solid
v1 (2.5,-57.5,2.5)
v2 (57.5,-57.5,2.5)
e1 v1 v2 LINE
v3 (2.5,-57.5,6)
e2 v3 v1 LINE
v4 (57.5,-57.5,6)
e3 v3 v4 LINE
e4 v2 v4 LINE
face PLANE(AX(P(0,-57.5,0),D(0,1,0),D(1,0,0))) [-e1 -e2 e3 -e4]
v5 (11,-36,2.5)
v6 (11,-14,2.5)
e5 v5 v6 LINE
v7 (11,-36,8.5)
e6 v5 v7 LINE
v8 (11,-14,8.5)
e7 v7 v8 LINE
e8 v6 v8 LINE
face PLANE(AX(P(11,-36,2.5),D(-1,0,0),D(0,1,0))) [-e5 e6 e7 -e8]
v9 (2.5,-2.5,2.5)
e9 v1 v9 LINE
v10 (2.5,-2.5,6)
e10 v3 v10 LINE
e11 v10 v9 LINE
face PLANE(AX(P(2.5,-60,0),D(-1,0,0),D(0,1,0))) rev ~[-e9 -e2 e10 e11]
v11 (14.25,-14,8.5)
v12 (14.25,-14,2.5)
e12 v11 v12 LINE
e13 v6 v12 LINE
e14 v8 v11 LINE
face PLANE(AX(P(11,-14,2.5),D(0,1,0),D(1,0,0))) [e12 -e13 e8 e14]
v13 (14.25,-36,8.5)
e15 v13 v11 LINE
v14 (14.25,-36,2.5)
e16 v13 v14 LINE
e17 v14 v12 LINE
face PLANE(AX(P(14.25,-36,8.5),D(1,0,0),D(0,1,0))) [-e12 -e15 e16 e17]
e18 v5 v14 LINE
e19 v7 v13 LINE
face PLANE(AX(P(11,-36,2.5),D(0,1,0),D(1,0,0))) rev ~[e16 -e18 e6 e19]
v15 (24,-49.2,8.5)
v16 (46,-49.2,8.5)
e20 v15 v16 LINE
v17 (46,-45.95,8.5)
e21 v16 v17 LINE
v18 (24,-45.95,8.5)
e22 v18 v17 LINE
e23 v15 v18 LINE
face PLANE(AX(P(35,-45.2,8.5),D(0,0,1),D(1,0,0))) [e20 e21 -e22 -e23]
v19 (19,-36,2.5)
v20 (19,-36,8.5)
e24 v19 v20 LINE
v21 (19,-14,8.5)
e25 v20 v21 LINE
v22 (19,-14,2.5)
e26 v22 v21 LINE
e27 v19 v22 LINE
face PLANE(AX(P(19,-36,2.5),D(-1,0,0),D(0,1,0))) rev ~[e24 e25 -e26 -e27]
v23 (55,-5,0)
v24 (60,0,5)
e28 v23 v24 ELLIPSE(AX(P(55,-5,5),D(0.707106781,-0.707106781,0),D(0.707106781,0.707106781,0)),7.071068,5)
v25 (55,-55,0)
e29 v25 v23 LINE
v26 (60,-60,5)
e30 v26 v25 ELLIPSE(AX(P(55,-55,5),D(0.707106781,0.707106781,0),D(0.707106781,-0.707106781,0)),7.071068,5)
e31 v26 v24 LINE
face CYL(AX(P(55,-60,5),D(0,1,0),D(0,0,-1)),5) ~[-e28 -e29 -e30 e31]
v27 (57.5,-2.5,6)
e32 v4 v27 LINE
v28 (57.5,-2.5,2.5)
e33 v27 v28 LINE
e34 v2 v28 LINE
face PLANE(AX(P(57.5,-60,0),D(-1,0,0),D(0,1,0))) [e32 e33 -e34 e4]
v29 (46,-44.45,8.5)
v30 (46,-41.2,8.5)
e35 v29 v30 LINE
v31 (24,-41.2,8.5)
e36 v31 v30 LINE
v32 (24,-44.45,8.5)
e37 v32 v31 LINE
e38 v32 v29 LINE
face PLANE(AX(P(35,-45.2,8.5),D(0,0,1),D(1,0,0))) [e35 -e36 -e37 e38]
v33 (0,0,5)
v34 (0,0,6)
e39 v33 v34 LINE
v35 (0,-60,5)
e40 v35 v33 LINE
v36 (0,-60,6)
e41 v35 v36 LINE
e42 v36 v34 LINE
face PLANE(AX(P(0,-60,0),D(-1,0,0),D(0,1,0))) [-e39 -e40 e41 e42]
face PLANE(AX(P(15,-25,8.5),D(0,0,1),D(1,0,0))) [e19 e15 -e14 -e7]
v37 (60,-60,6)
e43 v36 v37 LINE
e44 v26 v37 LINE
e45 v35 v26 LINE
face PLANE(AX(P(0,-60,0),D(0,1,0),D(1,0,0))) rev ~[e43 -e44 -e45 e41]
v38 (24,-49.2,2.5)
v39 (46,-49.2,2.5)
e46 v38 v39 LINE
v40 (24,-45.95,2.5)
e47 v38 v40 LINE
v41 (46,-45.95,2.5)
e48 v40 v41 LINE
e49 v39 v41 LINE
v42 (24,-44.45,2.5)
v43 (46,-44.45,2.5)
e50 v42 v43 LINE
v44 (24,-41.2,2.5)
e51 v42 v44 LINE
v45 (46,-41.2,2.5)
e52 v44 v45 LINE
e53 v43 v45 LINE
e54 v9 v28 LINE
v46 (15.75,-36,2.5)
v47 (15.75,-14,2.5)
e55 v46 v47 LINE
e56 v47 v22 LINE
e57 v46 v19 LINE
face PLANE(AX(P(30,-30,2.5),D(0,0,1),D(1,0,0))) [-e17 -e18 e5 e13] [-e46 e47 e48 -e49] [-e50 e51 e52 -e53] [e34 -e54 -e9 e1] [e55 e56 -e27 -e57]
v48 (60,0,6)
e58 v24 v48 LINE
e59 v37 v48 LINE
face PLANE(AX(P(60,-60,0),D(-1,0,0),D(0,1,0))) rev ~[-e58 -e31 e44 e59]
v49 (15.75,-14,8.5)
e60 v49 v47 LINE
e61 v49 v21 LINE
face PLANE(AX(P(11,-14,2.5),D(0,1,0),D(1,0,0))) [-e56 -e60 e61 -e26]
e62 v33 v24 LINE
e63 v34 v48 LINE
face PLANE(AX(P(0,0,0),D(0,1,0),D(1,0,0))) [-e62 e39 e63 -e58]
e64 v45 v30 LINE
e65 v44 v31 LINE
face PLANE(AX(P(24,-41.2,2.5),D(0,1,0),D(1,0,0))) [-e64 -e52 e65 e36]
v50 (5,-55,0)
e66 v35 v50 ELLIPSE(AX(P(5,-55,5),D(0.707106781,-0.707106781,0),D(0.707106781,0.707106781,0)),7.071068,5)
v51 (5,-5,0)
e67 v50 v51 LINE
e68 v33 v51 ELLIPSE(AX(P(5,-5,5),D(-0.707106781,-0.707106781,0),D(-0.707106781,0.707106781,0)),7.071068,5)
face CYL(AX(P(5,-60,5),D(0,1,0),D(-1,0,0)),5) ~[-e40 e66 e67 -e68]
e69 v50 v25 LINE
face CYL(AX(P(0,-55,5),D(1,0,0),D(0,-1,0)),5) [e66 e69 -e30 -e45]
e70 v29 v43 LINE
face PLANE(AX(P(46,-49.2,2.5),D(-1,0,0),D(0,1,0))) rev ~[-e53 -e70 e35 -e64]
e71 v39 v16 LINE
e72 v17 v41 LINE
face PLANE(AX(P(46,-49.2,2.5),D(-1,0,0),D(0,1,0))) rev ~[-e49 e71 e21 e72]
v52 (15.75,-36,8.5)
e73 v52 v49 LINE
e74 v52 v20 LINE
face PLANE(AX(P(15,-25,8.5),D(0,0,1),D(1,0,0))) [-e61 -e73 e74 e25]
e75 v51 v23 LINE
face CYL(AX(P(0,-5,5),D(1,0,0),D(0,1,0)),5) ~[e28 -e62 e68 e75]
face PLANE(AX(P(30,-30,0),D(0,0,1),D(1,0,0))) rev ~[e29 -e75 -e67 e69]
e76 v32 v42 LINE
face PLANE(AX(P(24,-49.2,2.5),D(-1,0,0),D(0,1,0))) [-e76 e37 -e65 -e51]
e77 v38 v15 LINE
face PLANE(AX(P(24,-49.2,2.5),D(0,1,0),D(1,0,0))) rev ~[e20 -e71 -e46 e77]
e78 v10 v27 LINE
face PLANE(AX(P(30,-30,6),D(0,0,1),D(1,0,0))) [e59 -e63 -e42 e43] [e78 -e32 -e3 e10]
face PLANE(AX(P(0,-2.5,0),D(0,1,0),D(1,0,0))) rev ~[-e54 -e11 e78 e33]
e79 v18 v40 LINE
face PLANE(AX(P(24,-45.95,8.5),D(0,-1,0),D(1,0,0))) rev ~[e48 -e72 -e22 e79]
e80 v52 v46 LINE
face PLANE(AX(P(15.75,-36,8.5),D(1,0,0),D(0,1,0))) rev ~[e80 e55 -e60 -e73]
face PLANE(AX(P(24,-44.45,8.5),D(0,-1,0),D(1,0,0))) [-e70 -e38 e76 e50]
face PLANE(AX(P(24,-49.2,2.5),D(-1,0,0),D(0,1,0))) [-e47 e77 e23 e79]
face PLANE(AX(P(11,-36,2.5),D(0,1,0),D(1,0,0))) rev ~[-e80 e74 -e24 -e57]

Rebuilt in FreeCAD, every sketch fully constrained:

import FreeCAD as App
import Part
import Sketcher
from FreeCAD import Vector


def edges_at(feature, points):
    """Names of the edges that pass closest to the given points."""
    edges = feature.Shape.Edges
    near = lambda p: min(range(len(edges)), key=lambda i: edges[i].distToShape(Part.Vertex(*p))[0])
    return sorted({f"Edge{near(p) + 1}" for p in points})


def faces_at(feature, points):
    """Names of the faces that lie closest to the given points."""
    faces = feature.Shape.Faces
    near = lambda p: min(range(len(faces)), key=lambda i: faces[i].distToShape(Part.Vertex(*p))[0])
    return sorted({f"Face{near(p) + 1}" for p in points})

doc = App.newDocument("Part")
body = doc.addObject("PartDesign::Body", "Body")

# Sketch on XY plane
sketch1 = body.newObject("Sketcher::SketchObject", "Sketch")
sketch1.AttachmentSupport = (doc.getObject("XY_Plane"), [""])
sketch1.MapMode = "FlatFace"
sketch1.addGeometry(Part.LineSegment(Vector(0, 0, 0), Vector(0, -60, 0)), False)
sketch1.addGeometry(Part.LineSegment(Vector(0, -60, 0), Vector(60, -60, 0)), False)
sketch1.addGeometry(Part.LineSegment(Vector(60, -60, 0), Vector(60, 0, 0)), False)
sketch1.addGeometry(Part.LineSegment(Vector(60, 0, 0), Vector(0, 0, 0)), False)
sketch1.addConstraint(Sketcher.Constraint("Coincident", 0, 2, 1, 1))
sketch1.addConstraint(Sketcher.Constraint("Coincident", 1, 2, 2, 1))
sketch1.addConstraint(Sketcher.Constraint("Coincident", 2, 2, 3, 1))
sketch1.addConstraint(Sketcher.Constraint("Coincident", 3, 2, 0, 1))
sketch1.addConstraint(Sketcher.Constraint("Vertical", 0))
sketch1.addConstraint(Sketcher.Constraint("Horizontal", 1))
sketch1.addConstraint(Sketcher.Constraint("Vertical", 2))
sketch1.addConstraint(Sketcher.Constraint("Horizontal", 3))
sketch1.addConstraint(Sketcher.Constraint("Coincident", 3, 2, -1, 1))
sketch1.addConstraint(Sketcher.Constraint("Equal", 3, 0))
sketch1.addConstraint(Sketcher.Constraint("DistanceX", 1, 1, 1, 2, 60.0))
pad1 = body.newObject("PartDesign::Pad", "Pad")
pad1.Profile = sketch1
pad1.Length = 6
doc.recompute()

thickness = body.newObject("PartDesign::Thickness", "Thickness")
thickness.Base = (pad1, faces_at(pad1, [(30, -30, 6)]))
thickness.Value = 2.5
thickness.Reversed = True
thickness.Join = "Arc"

# Sketch on XY plane
sketch2 = body.newObject("Sketcher::SketchObject", "Sketch001")
sketch2.AttachmentSupport = (doc.getObject("XY_Plane"), [""])
sketch2.MapMode = "FlatFace"
sketch2.AttachmentOffset = App.Placement(Vector(0, 0, 2.5), App.Rotation())
sketch2.addGeometry(Part.LineSegment(Vector(11, -14, 0), Vector(11, -36, 0)), False)
sketch2.addGeometry(Part.LineSegment(Vector(11, -36, 0), Vector(19, -36, 0)), False)
sketch2.addGeometry(Part.LineSegment(Vector(19, -36, 0), Vector(19, -14, 0)), False)
sketch2.addGeometry(Part.LineSegment(Vector(19, -14, 0), Vector(11, -14, 0)), False)
sketch2.addGeometry(Part.LineSegment(Vector(24, -41.2, 0), Vector(24, -49.2, 0)), False)
sketch2.addGeometry(Part.LineSegment(Vector(24, -49.2, 0), Vector(46, -49.2, 0)), False)
sketch2.addGeometry(Part.LineSegment(Vector(46, -49.2, 0), Vector(46, -41.2, 0)), False)
sketch2.addGeometry(Part.LineSegment(Vector(46, -41.2, 0), Vector(24, -41.2, 0)), False)
sketch2.addConstraint(Sketcher.Constraint("Coincident", 0, 2, 1, 1))
sketch2.addConstraint(Sketcher.Constraint("Coincident", 1, 2, 2, 1))
sketch2.addConstraint(Sketcher.Constraint("Coincident", 2, 2, 3, 1))
sketch2.addConstraint(Sketcher.Constraint("Coincident", 3, 2, 0, 1))
sketch2.addConstraint(Sketcher.Constraint("Coincident", 4, 2, 5, 1))
sketch2.addConstraint(Sketcher.Constraint("Coincident", 5, 2, 6, 1))
sketch2.addConstraint(Sketcher.Constraint("Coincident", 6, 2, 7, 1))
sketch2.addConstraint(Sketcher.Constraint("Coincident", 7, 2, 4, 1))
sketch2.addConstraint(Sketcher.Constraint("Vertical", 0))
sketch2.addConstraint(Sketcher.Constraint("Horizontal", 1))
sketch2.addConstraint(Sketcher.Constraint("Vertical", 2))
sketch2.addConstraint(Sketcher.Constraint("Horizontal", 3))
sketch2.addConstraint(Sketcher.Constraint("Vertical", 4))
sketch2.addConstraint(Sketcher.Constraint("Horizontal", 5))
sketch2.addConstraint(Sketcher.Constraint("Vertical", 6))
sketch2.addConstraint(Sketcher.Constraint("Horizontal", 7))
sketch2.addConstraint(Sketcher.Constraint("Equal", 7, 0))
sketch2.addConstraint(Sketcher.Constraint("Equal", 3, 4))
sketch2.addConstraint(Sketcher.Constraint("DistanceX", 1, 1, 1, 2, 8.0))
sketch2.addConstraint(Sketcher.Constraint("DistanceX", 5, 1, 5, 2, 22.0))
sketch2.addConstraint(Sketcher.Constraint("DistanceX", -1, 1, 0, 2, 11.0))
sketch2.addConstraint(Sketcher.Constraint("DistanceY", 0, 2, -1, 1, 36.0))
sketch2.addConstraint(Sketcher.Constraint("DistanceX", -1, 1, 4, 2, 24.0))
sketch2.addConstraint(Sketcher.Constraint("DistanceY", 4, 2, -1, 1, 49.2))
pad2 = body.newObject("PartDesign::Pad", "Pad001")
pad2.Profile = sketch2
pad2.Length = 6

# Sketch on XY plane
sketch3 = body.newObject("Sketcher::SketchObject", "Sketch002")
sketch3.AttachmentSupport = (doc.getObject("XY_Plane"), [""])
sketch3.MapMode = "FlatFace"
sketch3.AttachmentOffset = App.Placement(Vector(0, 0, 8.5), App.Rotation())
sketch3.addGeometry(Part.LineSegment(Vector(14.25, -14, 0), Vector(14.25, -36, 0)), False)
sketch3.addGeometry(Part.LineSegment(Vector(14.25, -36, 0), Vector(15.75, -36, 0)), False)
sketch3.addGeometry(Part.LineSegment(Vector(15.75, -36, 0), Vector(15.75, -14, 0)), False)
sketch3.addGeometry(Part.LineSegment(Vector(15.75, -14, 0), Vector(14.25, -14, 0)), False)
sketch3.addGeometry(Part.LineSegment(Vector(24, -44.45, 0), Vector(24, -45.95, 0)), False)
sketch3.addGeometry(Part.LineSegment(Vector(24, -45.95, 0), Vector(46, -45.95, 0)), False)
sketch3.addGeometry(Part.LineSegment(Vector(46, -45.95, 0), Vector(46, -44.45, 0)), False)
sketch3.addGeometry(Part.LineSegment(Vector(46, -44.45, 0), Vector(24, -44.45, 0)), False)
sketch3.addConstraint(Sketcher.Constraint("Coincident", 0, 2, 1, 1))
sketch3.addConstraint(Sketcher.Constraint("Coincident", 1, 2, 2, 1))
sketch3.addConstraint(Sketcher.Constraint("Coincident", 2, 2, 3, 1))
sketch3.addConstraint(Sketcher.Constraint("Coincident", 3, 2, 0, 1))
sketch3.addConstraint(Sketcher.Constraint("Coincident", 4, 2, 5, 1))
sketch3.addConstraint(Sketcher.Constraint("Coincident", 5, 2, 6, 1))
sketch3.addConstraint(Sketcher.Constraint("Coincident", 6, 2, 7, 1))
sketch3.addConstraint(Sketcher.Constraint("Coincident", 7, 2, 4, 1))
sketch3.addConstraint(Sketcher.Constraint("Vertical", 0))
sketch3.addConstraint(Sketcher.Constraint("Horizontal", 1))
sketch3.addConstraint(Sketcher.Constraint("Vertical", 2))
sketch3.addConstraint(Sketcher.Constraint("Horizontal", 3))
sketch3.addConstraint(Sketcher.Constraint("Vertical", 4))
sketch3.addConstraint(Sketcher.Constraint("Horizontal", 5))
sketch3.addConstraint(Sketcher.Constraint("Vertical", 6))
sketch3.addConstraint(Sketcher.Constraint("Horizontal", 7))
sketch3.addConstraint(Sketcher.Constraint("Equal", 7, 0))
sketch3.addConstraint(Sketcher.Constraint("Equal", 3, 4))
sketch3.addConstraint(Sketcher.Constraint("DistanceX", 5, 1, 5, 2, 22.0))
sketch3.addConstraint(Sketcher.Constraint("DistanceX", 1, 1, 1, 2, 1.5))
sketch3.addConstraint(Sketcher.Constraint("DistanceY", 0, 2, -1, 1, 36.0))
sketch3.addConstraint(Sketcher.Constraint("DistanceX", -1, 1, 4, 2, 24.0))
sketch3.addConstraint(Sketcher.Constraint("DistanceX", -1, 1, 0, 2, 14.25))
sketch3.addConstraint(Sketcher.Constraint("DistanceY", 4, 2, -1, 1, 45.95))
pocket1 = body.newObject("PartDesign::Pocket", "Pocket")
pocket1.Profile = sketch3
pocket1.Length = 6
doc.recompute()

fillet = body.newObject("PartDesign::Fillet", "Fillet")
fillet.Base = (pocket1, edges_at(pocket1, [
    (30, -60, 0),
    (60, -30, 0),
    (0, -30, 0),
    (30, 0, 0),
]))
fillet.Radius = 5

doc.recompute()
